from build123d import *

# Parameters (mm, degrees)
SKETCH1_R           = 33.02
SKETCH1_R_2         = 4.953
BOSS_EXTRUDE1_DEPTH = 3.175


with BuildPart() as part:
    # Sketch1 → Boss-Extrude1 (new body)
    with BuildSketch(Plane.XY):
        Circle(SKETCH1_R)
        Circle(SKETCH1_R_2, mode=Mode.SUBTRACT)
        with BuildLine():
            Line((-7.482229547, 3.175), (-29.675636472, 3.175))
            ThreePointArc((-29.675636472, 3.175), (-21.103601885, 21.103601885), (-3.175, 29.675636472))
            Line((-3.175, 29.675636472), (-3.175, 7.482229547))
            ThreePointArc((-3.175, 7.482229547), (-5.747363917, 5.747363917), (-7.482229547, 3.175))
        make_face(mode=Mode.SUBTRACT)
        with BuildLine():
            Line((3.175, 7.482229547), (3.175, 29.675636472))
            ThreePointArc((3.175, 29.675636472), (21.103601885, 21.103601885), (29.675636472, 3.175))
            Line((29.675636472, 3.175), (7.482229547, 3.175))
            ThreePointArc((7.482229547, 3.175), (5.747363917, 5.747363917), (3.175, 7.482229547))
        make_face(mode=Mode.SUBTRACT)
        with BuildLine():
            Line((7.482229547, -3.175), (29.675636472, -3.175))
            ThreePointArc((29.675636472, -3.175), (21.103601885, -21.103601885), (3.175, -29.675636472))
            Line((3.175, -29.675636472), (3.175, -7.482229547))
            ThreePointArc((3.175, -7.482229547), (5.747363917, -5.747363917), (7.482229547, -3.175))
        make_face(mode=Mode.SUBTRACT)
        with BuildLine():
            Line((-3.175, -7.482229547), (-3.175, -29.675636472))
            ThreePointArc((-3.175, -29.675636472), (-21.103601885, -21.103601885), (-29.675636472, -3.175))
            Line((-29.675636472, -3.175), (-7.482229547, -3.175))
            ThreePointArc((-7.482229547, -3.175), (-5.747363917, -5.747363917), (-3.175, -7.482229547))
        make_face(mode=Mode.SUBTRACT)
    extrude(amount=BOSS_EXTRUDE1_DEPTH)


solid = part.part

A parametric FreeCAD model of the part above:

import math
import FreeCAD as App
import Part
import Sketcher

V = App.Vector
Q = App.Units.Quantity

doc = App.newDocument("Part")
body = doc.addObject("PartDesign::Body", "Body")

# Sketch on XY plane
sketch1 = body.newObject("Sketcher::SketchObject", "Sketch")
sketch1.AttachmentSupport = (doc.getObject("XY_Plane"), [""])
sketch1.MapMode = "FlatFace"
sketch1.addGeometry([
    Part.Circle(V(0, 0, 0), V(0, 0, 1), 33),  # 0
    Part.ArcOfCircle(Part.Circle(V(0, 0, 0), V(0, 0, 1), 8.1), math.radians(-157), math.radians(-113)),  # 1
    Part.LineSegment(V(-3.2, -7.5, 0), V(-3.2, -29.7, 0)),  # 2
    Part.ArcOfCircle(Part.Circle(V(0, 0, 0), V(0, 0, 1), 29.8), math.radians(-174), math.radians(-96)),  # 3
    Part.LineSegment(V(-29.7, -3.2, 0), V(-7.5, -3.2, 0)),  # 4
    Part.ArcOfCircle(Part.Circle(V(0, 0, 0), V(0, 0, 1), 8.1), math.radians(-67), math.radians(-23)),  # 5
    Part.LineSegment(V(7.5, -3.2, 0), V(29.7, -3.2, 0)),  # 6
    Part.ArcOfCircle(Part.Circle(V(0, 0, 0), V(0, 0, 1), 29.8), math.radians(-84), math.radians(-6)),  # 7
    Part.LineSegment(V(3.2, -29.7, 0), V(3.2, -7.5, 0)),  # 8
    Part.ArcOfCircle(Part.Circle(V(0, 0, 0), V(0, 0, 1), 8.1), math.radians(113), math.radians(157)),  # 9
    Part.LineSegment(V(-7.5, 3.2, 0), V(-29.7, 3.2, 0)),  # 10
    Part.ArcOfCircle(Part.Circle(V(0, 0, 0), V(0, 0, 1), 29.8), math.radians(96), math.radians(174)),  # 11
    Part.LineSegment(V(-3.2, 29.7, 0), V(-3.2, 7.5, 0)),  # 12
    Part.Circle(V(0, 0, 0), V(0, 0, 1), 5),  # 13
    Part.ArcOfCircle(Part.Circle(V(0, 0, 0), V(0, 0, 1), 8.1), math.radians(23), math.radians(67)),  # 14
    Part.LineSegment(V(3.2, 7.5, 0), V(3.2, 29.7, 0)),  # 15
    Part.ArcOfCircle(Part.Circle(V(0, 0, 0), V(0, 0, 1), 29.8), math.radians(6), math.radians(84)),  # 16
    Part.LineSegment(V(29.7, 3.2, 0), V(7.5, 3.2, 0)),  # 17
], False)
sketch1.addConstraint([
    Sketcher.Constraint("Coincident", 1, 2, 2, 1),
    Sketcher.Constraint("Coincident", 2, 2, 3, 2),
    Sketcher.Constraint("Coincident", 3, 1, 4, 1),
    Sketcher.Constraint("Coincident", 4, 2, 1, 1),
    Sketcher.Constraint("Coincident", 5, 2, 6, 1),
    Sketcher.Constraint("Coincident", 6, 2, 7, 2),
    Sketcher.Constraint("Coincident", 7, 1, 8, 1),
    Sketcher.Constraint("Coincident", 8, 2, 5, 1),
    Sketcher.Constraint("Coincident", 9, 2, 10, 1),
    Sketcher.Constraint("Coincident", 10, 2, 11, 2),
    Sketcher.Constraint("Coincident", 11, 1, 12, 1),
    Sketcher.Constraint("Coincident", 12, 2, 9, 1),
    Sketcher.Constraint("Coincident", 14, 2, 15, 1),
    Sketcher.Constraint("Coincident", 15, 2, 16, 2),
    Sketcher.Constraint("Coincident", 16, 1, 17, 1),
    Sketcher.Constraint("Coincident", 17, 2, 14, 1),
    Sketcher.Constraint("Vertical", 2),
    Sketcher.Constraint("Horizontal", 4),
    Sketcher.Constraint("Horizontal", 6),
    Sketcher.Constraint("Vertical", 8),
    Sketcher.Constraint("Horizontal", 10),
    Sketcher.Constraint("Vertical", 12),
    Sketcher.Constraint("Vertical", 15),
    Sketcher.Constraint("Horizontal", 17),
    Sketcher.Constraint("Coincident", 0, 3, -1, 1),
    Sketcher.Constraint("Coincident", 1, 3, -1, 1),
    Sketcher.Constraint("Coincident", 3, 3, -1, 1),
    Sketcher.Constraint("Coincident", 5, 3, -1, 1),
    Sketcher.Constraint("Coincident", 7, 3, -1, 1),
    Sketcher.Constraint("Coincident", 9, 3, -1, 1),
    Sketcher.Constraint("Coincident", 11, 3, -1, 1),
    Sketcher.Constraint("Coincident", 13, 3, -1, 1),
    Sketcher.Constraint("Coincident", 14, 3, -1, 1),
    Sketcher.Constraint("Coincident", 16, 3, -1, 1),
    Sketcher.Constraint("Equal", 1, 5),
    Sketcher.Constraint("Equal", 3, 7),
    Sketcher.Constraint("Equal", 5, 9),
    Sketcher.Constraint("Equal", 7, 11),
    Sketcher.Constraint("Equal", 9, 14),
    Sketcher.Constraint("Equal", 11, 16),
    Sketcher.Constraint("Horizontal", 4, 2, 5, 2),
    Sketcher.Constraint("Horizontal", 2, 2, 7, 1),
    Sketcher.Constraint("Horizontal", 12, 2, 14, 2),
    Sketcher.Constraint("Horizontal", 10, 2, 16, 1),
    Sketcher.Constraint("Vertical", 4, 2, 9, 2),
    Sketcher.Constraint("Vertical", 2, 2, 11, 1),
    Sketcher.Constraint("Equal", 17, 2),
    Sketcher.Constraint("Diameter", 0, Q("2.6 in")),
    Sketcher.Constraint("Diameter", 13, Q("0.39 in")),
    Sketcher.Constraint("Radius", 1, Q("0.32 in")),
    Sketcher.Constraint("Radius", 3, Q("1.175 in")),
    Sketcher.Constraint("DistanceX", 2, 2, 7, 1, Q("0.25 in")),
])
pad1 = body.newObject("PartDesign::Pad", "Pad")
pad1.Profile = sketch1
pad1.Length = Q("0.125 in")

doc.recompute()
